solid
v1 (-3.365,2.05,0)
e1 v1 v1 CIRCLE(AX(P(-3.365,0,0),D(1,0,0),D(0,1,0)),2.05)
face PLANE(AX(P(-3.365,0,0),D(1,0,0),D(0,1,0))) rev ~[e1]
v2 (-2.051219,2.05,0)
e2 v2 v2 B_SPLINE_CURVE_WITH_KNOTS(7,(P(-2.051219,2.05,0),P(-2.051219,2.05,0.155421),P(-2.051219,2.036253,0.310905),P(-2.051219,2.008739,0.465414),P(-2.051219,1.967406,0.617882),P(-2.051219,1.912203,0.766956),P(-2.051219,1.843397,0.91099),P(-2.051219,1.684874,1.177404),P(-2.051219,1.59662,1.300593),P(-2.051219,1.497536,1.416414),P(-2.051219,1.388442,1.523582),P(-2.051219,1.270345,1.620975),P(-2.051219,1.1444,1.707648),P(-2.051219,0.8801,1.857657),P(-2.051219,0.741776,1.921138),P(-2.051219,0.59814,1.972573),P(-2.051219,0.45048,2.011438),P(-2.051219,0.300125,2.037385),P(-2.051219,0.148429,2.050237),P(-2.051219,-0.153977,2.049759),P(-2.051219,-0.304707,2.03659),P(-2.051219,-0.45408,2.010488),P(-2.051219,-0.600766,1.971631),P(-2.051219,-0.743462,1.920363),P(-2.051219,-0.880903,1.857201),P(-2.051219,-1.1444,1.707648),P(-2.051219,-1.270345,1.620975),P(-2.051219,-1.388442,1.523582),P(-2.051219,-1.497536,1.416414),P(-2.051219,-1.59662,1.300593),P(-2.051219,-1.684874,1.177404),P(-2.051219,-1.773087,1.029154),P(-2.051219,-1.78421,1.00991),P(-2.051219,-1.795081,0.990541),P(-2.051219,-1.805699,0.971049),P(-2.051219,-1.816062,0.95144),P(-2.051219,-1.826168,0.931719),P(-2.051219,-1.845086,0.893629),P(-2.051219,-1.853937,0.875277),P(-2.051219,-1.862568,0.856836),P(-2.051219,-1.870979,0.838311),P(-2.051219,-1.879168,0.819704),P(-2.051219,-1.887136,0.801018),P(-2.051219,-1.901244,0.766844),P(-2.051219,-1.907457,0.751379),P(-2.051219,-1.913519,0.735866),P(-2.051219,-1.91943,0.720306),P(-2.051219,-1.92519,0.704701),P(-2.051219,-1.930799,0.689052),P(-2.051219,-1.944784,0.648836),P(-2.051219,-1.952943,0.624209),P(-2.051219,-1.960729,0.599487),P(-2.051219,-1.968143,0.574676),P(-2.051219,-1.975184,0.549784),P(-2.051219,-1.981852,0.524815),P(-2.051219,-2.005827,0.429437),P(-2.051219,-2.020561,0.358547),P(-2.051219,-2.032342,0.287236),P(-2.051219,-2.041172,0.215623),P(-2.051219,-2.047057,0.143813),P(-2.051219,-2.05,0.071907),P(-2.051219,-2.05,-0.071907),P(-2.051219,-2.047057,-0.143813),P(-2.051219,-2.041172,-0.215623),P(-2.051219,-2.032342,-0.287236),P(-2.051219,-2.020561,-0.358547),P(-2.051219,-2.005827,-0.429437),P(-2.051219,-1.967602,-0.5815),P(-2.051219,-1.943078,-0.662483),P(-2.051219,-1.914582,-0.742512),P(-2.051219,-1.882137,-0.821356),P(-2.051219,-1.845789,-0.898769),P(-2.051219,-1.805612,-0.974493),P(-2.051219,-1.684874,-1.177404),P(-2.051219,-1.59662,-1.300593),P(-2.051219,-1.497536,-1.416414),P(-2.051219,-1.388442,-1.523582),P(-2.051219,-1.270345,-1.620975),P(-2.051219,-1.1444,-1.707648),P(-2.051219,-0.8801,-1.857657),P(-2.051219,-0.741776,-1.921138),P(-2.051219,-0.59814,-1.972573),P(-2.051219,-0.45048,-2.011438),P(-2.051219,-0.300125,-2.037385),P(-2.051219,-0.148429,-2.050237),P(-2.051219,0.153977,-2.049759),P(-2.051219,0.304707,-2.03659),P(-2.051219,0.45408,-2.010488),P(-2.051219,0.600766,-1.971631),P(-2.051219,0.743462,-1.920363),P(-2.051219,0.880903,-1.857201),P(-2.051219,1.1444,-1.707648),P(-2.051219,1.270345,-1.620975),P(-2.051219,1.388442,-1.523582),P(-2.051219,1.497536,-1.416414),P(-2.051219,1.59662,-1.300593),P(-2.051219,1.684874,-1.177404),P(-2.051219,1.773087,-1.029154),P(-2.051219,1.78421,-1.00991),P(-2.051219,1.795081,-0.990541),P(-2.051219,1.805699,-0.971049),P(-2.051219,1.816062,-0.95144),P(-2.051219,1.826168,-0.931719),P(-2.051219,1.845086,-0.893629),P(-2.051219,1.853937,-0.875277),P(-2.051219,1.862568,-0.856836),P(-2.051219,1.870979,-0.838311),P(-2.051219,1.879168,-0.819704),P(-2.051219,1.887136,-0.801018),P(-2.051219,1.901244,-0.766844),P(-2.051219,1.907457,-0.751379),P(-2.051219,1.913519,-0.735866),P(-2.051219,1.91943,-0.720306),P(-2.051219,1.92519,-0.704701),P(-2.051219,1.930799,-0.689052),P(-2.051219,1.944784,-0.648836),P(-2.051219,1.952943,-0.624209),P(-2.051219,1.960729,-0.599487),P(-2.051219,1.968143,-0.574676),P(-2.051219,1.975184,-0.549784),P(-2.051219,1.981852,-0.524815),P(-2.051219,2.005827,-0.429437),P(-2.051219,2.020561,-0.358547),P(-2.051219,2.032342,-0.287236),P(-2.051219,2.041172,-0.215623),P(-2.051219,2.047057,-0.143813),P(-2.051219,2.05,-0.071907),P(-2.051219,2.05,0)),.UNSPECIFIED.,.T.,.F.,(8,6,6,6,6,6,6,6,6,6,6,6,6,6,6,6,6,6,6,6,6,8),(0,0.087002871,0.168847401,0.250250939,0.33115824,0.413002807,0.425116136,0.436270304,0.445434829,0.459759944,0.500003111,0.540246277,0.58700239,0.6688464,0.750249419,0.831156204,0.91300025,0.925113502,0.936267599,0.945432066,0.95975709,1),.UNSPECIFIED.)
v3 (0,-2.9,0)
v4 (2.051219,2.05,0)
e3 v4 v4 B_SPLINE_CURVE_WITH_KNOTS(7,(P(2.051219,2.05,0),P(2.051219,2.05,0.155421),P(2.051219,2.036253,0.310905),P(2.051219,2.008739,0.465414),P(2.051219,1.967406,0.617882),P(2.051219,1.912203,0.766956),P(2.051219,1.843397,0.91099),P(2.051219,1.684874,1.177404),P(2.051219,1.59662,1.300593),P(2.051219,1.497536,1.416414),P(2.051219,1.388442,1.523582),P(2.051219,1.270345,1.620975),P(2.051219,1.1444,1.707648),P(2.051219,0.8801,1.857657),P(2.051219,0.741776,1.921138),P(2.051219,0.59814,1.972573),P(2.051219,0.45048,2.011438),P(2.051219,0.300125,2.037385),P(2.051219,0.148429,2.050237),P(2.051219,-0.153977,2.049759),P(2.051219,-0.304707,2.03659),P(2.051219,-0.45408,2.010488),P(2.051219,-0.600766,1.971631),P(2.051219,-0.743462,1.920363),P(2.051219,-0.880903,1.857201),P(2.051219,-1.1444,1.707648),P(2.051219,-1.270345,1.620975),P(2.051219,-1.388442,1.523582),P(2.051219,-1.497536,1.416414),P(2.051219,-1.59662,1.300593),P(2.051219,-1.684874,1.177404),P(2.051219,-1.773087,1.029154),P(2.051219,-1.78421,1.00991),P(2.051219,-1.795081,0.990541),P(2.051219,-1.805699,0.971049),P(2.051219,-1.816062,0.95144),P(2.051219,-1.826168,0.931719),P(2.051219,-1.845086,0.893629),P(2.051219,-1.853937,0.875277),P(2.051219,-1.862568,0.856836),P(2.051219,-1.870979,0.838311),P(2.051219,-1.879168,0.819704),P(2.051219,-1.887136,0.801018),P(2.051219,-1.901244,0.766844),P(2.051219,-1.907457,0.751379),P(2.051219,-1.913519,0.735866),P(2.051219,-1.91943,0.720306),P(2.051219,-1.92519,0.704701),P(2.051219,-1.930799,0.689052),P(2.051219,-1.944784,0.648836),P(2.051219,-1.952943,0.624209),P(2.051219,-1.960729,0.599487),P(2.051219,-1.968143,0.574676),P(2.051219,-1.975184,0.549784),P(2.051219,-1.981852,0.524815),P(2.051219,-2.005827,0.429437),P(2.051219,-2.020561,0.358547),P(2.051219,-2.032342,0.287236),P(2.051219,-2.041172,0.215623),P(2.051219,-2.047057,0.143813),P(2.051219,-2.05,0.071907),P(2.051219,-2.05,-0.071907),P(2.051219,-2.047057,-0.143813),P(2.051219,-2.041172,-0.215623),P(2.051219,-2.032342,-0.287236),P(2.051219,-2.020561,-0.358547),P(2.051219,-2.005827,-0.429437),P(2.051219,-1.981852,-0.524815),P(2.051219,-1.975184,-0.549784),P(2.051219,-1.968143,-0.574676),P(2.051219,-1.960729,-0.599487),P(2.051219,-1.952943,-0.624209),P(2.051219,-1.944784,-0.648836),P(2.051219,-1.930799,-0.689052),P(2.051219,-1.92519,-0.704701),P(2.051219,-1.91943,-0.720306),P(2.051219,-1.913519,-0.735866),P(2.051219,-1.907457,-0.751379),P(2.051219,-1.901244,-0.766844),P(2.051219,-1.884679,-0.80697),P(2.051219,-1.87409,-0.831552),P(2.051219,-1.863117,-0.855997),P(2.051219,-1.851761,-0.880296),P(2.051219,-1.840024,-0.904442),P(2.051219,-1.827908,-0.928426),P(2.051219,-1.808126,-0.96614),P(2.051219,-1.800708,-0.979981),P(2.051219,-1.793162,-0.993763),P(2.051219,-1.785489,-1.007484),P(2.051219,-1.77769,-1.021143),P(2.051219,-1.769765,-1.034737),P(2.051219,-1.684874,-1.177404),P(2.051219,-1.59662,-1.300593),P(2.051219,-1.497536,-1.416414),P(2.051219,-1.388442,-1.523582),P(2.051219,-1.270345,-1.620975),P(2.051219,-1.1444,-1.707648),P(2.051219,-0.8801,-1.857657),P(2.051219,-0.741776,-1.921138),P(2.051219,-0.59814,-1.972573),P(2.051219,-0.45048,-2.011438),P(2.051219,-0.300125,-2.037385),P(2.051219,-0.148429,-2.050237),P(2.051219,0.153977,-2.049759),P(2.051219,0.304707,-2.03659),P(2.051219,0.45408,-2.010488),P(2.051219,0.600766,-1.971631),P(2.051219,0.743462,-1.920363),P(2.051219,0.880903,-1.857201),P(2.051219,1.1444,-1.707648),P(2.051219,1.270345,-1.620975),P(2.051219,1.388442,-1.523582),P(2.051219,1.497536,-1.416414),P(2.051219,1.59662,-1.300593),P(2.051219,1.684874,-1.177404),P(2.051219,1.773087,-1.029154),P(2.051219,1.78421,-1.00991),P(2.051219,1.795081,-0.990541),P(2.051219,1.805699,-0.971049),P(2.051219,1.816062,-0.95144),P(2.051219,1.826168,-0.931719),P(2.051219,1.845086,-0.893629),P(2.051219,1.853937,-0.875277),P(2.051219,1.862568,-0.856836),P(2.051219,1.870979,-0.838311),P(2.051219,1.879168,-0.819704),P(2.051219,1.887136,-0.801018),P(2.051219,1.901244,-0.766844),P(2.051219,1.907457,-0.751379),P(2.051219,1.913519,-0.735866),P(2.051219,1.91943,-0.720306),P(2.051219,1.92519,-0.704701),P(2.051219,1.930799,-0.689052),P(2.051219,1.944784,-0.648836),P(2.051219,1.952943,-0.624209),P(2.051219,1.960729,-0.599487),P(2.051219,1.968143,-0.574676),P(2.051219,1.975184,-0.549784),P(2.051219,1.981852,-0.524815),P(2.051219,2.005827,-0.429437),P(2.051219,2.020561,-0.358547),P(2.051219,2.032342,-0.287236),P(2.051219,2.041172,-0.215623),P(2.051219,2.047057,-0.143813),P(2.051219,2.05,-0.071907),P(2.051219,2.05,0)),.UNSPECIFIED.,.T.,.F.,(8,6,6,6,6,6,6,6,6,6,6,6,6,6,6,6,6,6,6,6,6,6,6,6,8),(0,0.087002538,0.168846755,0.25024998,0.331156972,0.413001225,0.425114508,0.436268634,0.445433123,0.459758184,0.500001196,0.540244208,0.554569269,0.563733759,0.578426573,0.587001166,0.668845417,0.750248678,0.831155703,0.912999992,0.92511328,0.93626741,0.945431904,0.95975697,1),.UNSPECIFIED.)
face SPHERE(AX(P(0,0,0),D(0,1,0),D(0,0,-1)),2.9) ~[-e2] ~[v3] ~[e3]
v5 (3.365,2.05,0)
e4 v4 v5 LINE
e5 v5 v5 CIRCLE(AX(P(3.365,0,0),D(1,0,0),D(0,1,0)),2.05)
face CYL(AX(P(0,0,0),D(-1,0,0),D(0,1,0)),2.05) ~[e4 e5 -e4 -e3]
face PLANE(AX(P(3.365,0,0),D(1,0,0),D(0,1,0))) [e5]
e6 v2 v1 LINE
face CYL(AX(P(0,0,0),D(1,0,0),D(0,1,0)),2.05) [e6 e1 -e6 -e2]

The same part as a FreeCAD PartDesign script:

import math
import FreeCAD as App
import Part
import Sketcher

V = App.Vector
Q = App.Units.Quantity

doc = App.newDocument("Part")
body = doc.addObject("PartDesign::Body", "Body")

# Sketch on YZ plane
sketch1 = body.newObject("Sketcher::SketchObject", "Sketch")
sketch1.AttachmentSupport = (doc.getObject("YZ_Plane"), [""])
sketch1.MapMode = "FlatFace"
sketch1.addGeometry(Part.Circle(V(0, 0, 0), V(0, 0, 1), 2.05), False)
sketch1.addConstraint([
    Sketcher.Constraint("Coincident", 0, 3, -1, 1),
    Sketcher.Constraint("Diameter", 0, Q("4.1 mm")),
])
pad1 = body.newObject("PartDesign::Pad", "Pad")
pad1.Profile = sketch1
pad1.Length = 6.73
pad1.Midplane = True

# Sketch on YZ plane
sketch2 = body.newObject("Sketcher::SketchObject", "Sketch001")
sketch2.AttachmentSupport = (doc.getObject("YZ_Plane"), [""])
sketch2.MapMode = "FlatFace"
sketch2.addGeometry([
    Part.LineSegment(V(2.9, 0, 0), V(-2.9, 0, 0)),
    Part.ArcOfCircle(Part.Circle(V(0, 0, 0), V(0, 0, 1), 2.9), math.radians(180), math.radians(360)),
], False)
sketch2.addConstraint([
    Sketcher.Constraint("Coincident", 0, 1, 1, 2),
    Sketcher.Constraint("Coincident", 1, 1, 0, 2),
    Sketcher.Constraint("Horizontal", 0),
    Sketcher.Constraint("Coincident", 1, 3, -1, 1),
    Sketcher.Constraint("PointOnObject", 0, 1, -1),
    Sketcher.Constraint("Radius", 1, Q("2.9 mm")),
])
revolution = body.newObject("PartDesign::Revolution", "Revolution")
revolution.Profile = sketch2
revolution.ReferenceAxis = (sketch2, ["H_Axis"])
revolution.Angle = 360

doc.recompute()
